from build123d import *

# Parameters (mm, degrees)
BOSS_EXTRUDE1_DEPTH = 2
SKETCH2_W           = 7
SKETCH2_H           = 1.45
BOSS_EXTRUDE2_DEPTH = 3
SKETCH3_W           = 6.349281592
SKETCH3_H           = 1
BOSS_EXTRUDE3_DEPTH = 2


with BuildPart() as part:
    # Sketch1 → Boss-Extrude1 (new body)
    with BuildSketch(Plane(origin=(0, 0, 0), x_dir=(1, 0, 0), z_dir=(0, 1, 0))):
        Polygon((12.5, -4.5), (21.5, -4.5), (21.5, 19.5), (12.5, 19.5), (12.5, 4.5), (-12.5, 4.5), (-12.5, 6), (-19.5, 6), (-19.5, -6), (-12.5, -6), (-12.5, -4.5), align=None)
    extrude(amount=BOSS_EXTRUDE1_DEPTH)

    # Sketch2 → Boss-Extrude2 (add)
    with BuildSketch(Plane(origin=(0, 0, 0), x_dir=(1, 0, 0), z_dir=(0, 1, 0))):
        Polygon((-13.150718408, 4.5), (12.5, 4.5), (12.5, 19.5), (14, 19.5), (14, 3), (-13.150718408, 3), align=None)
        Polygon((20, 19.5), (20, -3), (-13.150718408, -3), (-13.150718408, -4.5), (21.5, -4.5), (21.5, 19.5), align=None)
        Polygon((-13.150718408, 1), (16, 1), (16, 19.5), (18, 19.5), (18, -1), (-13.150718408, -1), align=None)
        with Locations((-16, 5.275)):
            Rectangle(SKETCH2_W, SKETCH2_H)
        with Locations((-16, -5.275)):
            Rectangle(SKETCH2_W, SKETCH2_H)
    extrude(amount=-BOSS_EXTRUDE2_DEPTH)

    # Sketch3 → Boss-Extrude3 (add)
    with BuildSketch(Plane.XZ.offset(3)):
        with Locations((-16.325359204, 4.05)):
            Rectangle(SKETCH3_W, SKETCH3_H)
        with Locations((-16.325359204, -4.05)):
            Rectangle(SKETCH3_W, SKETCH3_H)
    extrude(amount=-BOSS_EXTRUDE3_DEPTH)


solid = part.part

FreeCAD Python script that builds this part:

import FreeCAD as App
import Part
import Sketcher

V = App.Vector
Q = App.Units.Quantity


def add_polygon(sketch, points):
    """Adds a closed chain of lines whose ends are joined by coincident constraints."""
    first, n = sketch.GeometryCount, len(points)
    for a, b in zip(points, points[1:] + points[:1]):
        sketch.addGeometry(Part.LineSegment(App.Vector(*a, 0), App.Vector(*b, 0)), False)
    for i in range(n):
        sketch.addConstraint(Sketcher.Constraint("Coincident", first + i, 2, first + (i + 1) % n, 1))

doc = App.newDocument("Part")
body = doc.addObject("PartDesign::Body", "Body")

sketch1 = body.newObject("Sketcher::SketchObject", "Sketch")
sketch1.AttachmentSupport = (doc.getObject("XZ_Plane"), [""])
sketch1.MapMode = "FlatFace"
add_polygon(sketch1, [(21.5, 4.5), (21.5, -19.5), (12.5, -19.5), (12.5, -4.5), (-12.5, -4.5), (-12.5, -6), (-19.5, -6), (-19.5, 6), (-12.5, 6), (-12.5, 4.5)])
sketch1.addConstraint([
    Sketcher.Constraint("Vertical", 0),
    Sketcher.Constraint("Horizontal", 1),
    Sketcher.Constraint("Vertical", 2),
    Sketcher.Constraint("Horizontal", 3),
    Sketcher.Constraint("Vertical", 4),
    Sketcher.Constraint("Horizontal", 5),
    Sketcher.Constraint("Vertical", 6),
    Sketcher.Constraint("Horizontal", 7),
    Sketcher.Constraint("Vertical", 8),
    Sketcher.Constraint("Horizontal", 9),
    Sketcher.Constraint("Symmetric", 2, 2, 8, 2, -1, 1),
    Sketcher.Constraint("Symmetric", 4, 2, 7, 2, -1),
    Sketcher.Constraint("DistanceX", 1, 2, 1, 1, Q("9 mm")),
    Sketcher.Constraint("DistanceX", 3, 2, 3, 1, Q("25 mm")),
    Sketcher.Constraint("DistanceX", 5, 2, 5, 1, Q("7 mm")),
    Sketcher.Constraint("DistanceY", 0, 2, 0, 1, Q("24 mm")),
    Sketcher.Constraint("DistanceY", 2, 1, 2, 2, Q("15 mm")),
    Sketcher.Constraint("DistanceY", 6, 1, 6, 2, Q("12 mm")),
])
pad1 = body.newObject("PartDesign::Pad", "Pad")
pad1.Profile = sketch1
pad1.Length = 2
pad1.Reversed = True

sketch2 = body.newObject("Sketcher::SketchObject", "Sketch001")
sketch2.AttachmentSupport = (doc.getObject("XZ_Plane"), [""])
sketch2.MapMode = "FlatFace"
add_polygon(sketch2, [(12.5, -4.5), (-13.2, -4.5), (-13.2, -3), (14, -3), (14, -19.5), (12.5, -19.5)])
add_polygon(sketch2, [(20, -19.5), (20, 3), (-13.2, 3), (-13.2, 4.5), (21.5, 4.5), (21.5, -19.5)])
add_polygon(sketch2, [(16, -1), (-13.2, -1), (-13.2, 1), (18, 1), (18, -19.5), (16, -19.5)])
add_polygon(sketch2, [(-19.5, -6), (-19.5, -4.5), (-12.5, -4.5), (-12.5, -6)])
add_polygon(sketch2, [(-19.5, 4.5), (-19.5, 6), (-12.5, 6), (-12.5, 4.5)])
sketch2.addConstraint([
    Sketcher.Constraint("Horizontal", 0),
    Sketcher.Constraint("Vertical", 1),
    Sketcher.Constraint("Horizontal", 2),
    Sketcher.Constraint("Vertical", 3),
    Sketcher.Constraint("Horizontal", 4),
    Sketcher.Constraint("Vertical", 5),
    Sketcher.Constraint("Vertical", 6),
    Sketcher.Constraint("Horizontal", 7),
    Sketcher.Constraint("Vertical", 8),
    Sketcher.Constraint("Horizontal", 9),
    Sketcher.Constraint("Vertical", 10),
    Sketcher.Constraint("Horizontal", 11),
    Sketcher.Constraint("Horizontal", 12),
    Sketcher.Constraint("Vertical", 13),
    Sketcher.Constraint("Horizontal", 14),
    Sketcher.Constraint("Vertical", 15),
    Sketcher.Constraint("Horizontal", 16),
    Sketcher.Constraint("Vertical", 17),
    Sketcher.Constraint("Vertical", 18),
    Sketcher.Constraint("Horizontal", 19),
    Sketcher.Constraint("Vertical", 20),
    Sketcher.Constraint("Horizontal", 21),
    Sketcher.Constraint("Vertical", 22),
    Sketcher.Constraint("Horizontal", 23),
    Sketcher.Constraint("Vertical", 24),
    Sketcher.Constraint("Horizontal", 25),
    Sketcher.Constraint("Symmetric", 1, 2, 7, 2, -1),
    Sketcher.Constraint("Symmetric", 21, 2, 22, 2, -1),
    Sketcher.Constraint("Symmetric", 19, 2, 24, 2, -1),
    Sketcher.Constraint("Horizontal", 4, 2, 10, 2),
    Sketcher.Constraint("Horizontal", 11, 2, 15, 2),
    Sketcher.Constraint("Vertical", 8, 2, 12, 2),
    Sketcher.Constraint("Equal", 4, 11),
    Sketcher.Constraint("Equal", 11, 1),
    Sketcher.Constraint("Equal", 1, 8),
    Sketcher.Constraint("Equal", 16, 13),
    Sketcher.Constraint("DistanceX", 16, 2, 16, 1, Q("2 mm")),
    Sketcher.Constraint("DistanceX", 19, 1, 19, 2, Q("7 mm")),
    Sketcher.Constraint("DistanceY", 5, 1, 5, 2, Q("15 mm")),
    Sketcher.Constraint("DistanceY", 10, 2, 10, 1, Q("24 mm")),
    Sketcher.Constraint("DistanceX", 4, 2, 4, 1, Q("1.5 mm")),
    Sketcher.Constraint("DistanceY", 15, 2, 15, 1, Q("20.5 mm")),
    Sketcher.Constraint("DistanceX", -1, 1, 2, 2, Q("14 mm")),
    Sketcher.Constraint("DistanceX", -1, 1, 6, 2, Q("20 mm")),
    Sketcher.Constraint("DistanceX", -1, 1, 14, 2, Q("18 mm")),
    Sketcher.Constraint("DistanceY", 20, 2, -1, 1, Q("6 mm")),
    Sketcher.Constraint("DistanceY", 18, 1, 18, 2, Q("1.45 mm")),
    Sketcher.Constraint("DistanceX", 18, 2, -1, 1, Q("19.5 mm")),
    Sketcher.Constraint("DistanceX", 0, 2, 0, 1, Q("25.650718 mm")),
])
pad2 = body.newObject("PartDesign::Pad", "Pad001")
pad2.Profile = sketch2
pad2.Length = 3

sketch3 = body.newObject("Sketcher::SketchObject", "Sketch002")
sketch3.AttachmentSupport = (doc.getObject("XZ_Plane"), [""])
sketch3.MapMode = "FlatFace"
sketch3.AttachmentOffset = App.Placement(V(0, 0, 3), App.Rotation())
add_polygon(sketch3, [(-19.5, 4.5), (-19.5, 3.5), (-13.2, 3.5), (-13.2, 4.5)])
add_polygon(sketch3, [(-19.5, -3.5), (-19.5, -4.5), (-13.2, -4.5), (-13.2, -3.5)])
sketch3.addConstraint([
    Sketcher.Constraint("Vertical", 0),
    Sketcher.Constraint("Horizontal", 1),
    Sketcher.Constraint("Vertical", 2),
    Sketcher.Constraint("Horizontal", 3),
    Sketcher.Constraint("Vertical", 4),
    Sketcher.Constraint("Horizontal", 5),
    Sketcher.Constraint("Vertical", 6),
    Sketcher.Constraint("Horizontal", 7),
    Sketcher.Constraint("Symmetric", 3, 2, 4, 2, -1),
    Sketcher.Constraint("Symmetric", 1, 2, 6, 2, -1),
    Sketcher.Constraint("DistanceY", 0, 2, 0, 1, Q("1 mm")),
    Sketcher.Constraint("DistanceX", 0, 2, -1, 1, Q("19.5 mm")),
    Sketcher.Constraint("DistanceY", 4, 2, 0, 2, Q("8.1 mm")),
    Sketcher.Constraint("DistanceX", 1, 1, 1, 2, Q("6.349282 mm")),
])
pad3 = body.newObject("PartDesign::Pad", "Pad002")
pad3.Profile = sketch3
pad3.Length = 2
pad3.Reversed = True

doc.recompute()
